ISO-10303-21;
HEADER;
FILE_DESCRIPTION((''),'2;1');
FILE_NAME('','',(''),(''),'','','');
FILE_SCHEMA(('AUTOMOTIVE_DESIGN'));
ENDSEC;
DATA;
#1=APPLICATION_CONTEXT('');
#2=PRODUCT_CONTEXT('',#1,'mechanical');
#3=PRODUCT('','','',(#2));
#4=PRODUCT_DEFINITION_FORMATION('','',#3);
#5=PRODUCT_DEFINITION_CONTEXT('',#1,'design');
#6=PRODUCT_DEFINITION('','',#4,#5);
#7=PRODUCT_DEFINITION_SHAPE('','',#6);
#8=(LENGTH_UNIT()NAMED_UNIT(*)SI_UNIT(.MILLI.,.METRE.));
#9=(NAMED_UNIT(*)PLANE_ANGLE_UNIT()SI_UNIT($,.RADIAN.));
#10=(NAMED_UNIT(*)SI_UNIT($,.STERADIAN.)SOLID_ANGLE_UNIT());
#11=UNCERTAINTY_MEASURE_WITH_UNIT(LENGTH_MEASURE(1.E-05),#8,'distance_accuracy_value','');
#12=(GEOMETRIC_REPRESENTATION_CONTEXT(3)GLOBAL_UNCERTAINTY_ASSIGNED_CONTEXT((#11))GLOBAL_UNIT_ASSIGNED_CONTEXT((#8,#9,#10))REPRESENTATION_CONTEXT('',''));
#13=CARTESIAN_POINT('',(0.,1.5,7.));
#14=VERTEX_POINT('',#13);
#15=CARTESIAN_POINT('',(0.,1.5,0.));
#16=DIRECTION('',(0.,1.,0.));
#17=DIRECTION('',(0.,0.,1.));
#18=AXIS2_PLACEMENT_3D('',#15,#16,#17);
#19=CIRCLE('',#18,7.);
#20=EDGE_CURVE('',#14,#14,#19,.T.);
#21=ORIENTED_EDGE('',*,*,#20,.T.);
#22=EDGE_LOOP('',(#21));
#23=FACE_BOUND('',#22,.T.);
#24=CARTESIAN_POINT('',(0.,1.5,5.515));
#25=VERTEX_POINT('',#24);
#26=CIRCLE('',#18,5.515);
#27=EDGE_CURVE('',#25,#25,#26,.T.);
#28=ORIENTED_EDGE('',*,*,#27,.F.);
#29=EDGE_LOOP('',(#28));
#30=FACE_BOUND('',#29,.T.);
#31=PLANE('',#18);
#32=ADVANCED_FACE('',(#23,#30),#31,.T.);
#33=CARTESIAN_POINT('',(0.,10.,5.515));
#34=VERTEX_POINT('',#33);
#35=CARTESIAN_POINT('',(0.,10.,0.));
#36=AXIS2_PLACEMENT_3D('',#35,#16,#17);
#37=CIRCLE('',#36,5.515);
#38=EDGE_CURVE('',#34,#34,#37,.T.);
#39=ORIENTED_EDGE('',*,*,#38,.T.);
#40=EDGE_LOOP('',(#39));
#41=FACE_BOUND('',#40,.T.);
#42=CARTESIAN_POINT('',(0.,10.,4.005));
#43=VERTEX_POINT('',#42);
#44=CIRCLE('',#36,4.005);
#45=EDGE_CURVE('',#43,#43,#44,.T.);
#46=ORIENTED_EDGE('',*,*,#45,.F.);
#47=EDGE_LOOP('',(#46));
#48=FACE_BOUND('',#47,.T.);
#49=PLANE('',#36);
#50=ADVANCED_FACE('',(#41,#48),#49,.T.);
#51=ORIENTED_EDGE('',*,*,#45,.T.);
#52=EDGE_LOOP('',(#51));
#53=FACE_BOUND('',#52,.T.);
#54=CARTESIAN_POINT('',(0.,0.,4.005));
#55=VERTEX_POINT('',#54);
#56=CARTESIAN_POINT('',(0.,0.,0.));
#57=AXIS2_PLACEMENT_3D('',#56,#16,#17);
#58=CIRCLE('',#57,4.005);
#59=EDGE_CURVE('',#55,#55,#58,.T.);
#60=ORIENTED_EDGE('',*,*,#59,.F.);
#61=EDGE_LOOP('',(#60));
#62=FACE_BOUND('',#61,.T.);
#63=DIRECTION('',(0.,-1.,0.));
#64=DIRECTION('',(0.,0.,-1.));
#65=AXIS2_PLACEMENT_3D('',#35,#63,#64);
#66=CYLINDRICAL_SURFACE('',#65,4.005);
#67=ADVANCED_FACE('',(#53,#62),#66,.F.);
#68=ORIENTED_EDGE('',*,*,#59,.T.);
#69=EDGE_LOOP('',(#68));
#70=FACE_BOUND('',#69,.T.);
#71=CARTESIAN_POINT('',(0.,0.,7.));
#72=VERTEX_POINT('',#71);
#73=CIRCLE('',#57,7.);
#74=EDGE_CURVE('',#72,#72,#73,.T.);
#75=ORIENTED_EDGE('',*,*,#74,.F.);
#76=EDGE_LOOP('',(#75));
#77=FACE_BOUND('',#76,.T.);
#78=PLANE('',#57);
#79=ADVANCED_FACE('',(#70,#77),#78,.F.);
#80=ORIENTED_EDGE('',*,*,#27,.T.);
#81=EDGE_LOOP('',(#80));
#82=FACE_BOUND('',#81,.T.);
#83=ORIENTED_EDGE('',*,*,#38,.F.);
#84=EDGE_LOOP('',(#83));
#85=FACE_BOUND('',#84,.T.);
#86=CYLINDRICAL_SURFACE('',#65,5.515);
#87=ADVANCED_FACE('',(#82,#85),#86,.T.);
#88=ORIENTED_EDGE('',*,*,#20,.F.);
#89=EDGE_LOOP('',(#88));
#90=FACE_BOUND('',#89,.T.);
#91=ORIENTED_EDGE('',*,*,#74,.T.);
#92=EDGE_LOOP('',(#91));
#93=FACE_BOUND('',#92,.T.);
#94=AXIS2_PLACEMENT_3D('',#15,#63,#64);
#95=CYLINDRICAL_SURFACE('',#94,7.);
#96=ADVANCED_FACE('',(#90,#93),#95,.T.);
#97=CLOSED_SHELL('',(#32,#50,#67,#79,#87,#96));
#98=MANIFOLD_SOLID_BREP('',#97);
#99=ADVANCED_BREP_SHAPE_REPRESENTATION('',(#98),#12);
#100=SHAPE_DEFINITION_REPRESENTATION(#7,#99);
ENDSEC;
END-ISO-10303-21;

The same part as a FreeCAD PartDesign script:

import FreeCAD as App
import Part
import Sketcher
from FreeCAD import Vector

doc = App.newDocument("Part")
body = doc.addObject("PartDesign::Body", "Body")

sketch1 = body.newObject("Sketcher::SketchObject", "Sketch")
sketch1.AttachmentSupport = (doc.getObject("XZ_Plane"), [""])
sketch1.MapMode = "FlatFace"
sketch1.addGeometry([
    Part.Circle(Vector(0, 0, 0), Vector(0, 0, 1), 5.5),
    Part.Circle(Vector(0, 0, 0), Vector(0, 0, 1), 4),
], False)
sketch1.addConstraint([
    Sketcher.Constraint("Coincident", 0, 3, -1, 1),
    Sketcher.Constraint("Coincident", 1, 3, -1, 1),
    Sketcher.Constraint("Diameter", 0, 11.03),
    Sketcher.Constraint("Diameter", 1, 8.01),
])
pad1 = body.newObject("PartDesign::Pad", "Pad")
pad1.Profile = sketch1
pad1.Length = 10
pad1.Reversed = True

sketch2 = body.newObject("Sketcher::SketchObject", "Sketch001")
sketch2.AttachmentSupport = (doc.getObject("XZ_Plane"), [""])
sketch2.MapMode = "FlatFace"
sketch2.addGeometry([
    Part.Circle(Vector(0, 0, 0), Vector(0, 0, 1), 7),
    Part.Circle(Vector(0, 0, 0), Vector(0, 0, 1), 6),
], False)
sketch2.addConstraint([
    Sketcher.Constraint("Coincident", 0, 3, -1, 1),
    Sketcher.Constraint("Coincident", 1, 3, -1, 1),
    Sketcher.Constraint("Diameter", 0, 14.0),
    Sketcher.Constraint("Diameter", 1, 11.03),
])
pad2 = body.newObject("PartDesign::Pad", "Pad001")
pad2.Profile = sketch2
pad2.Length = 1.5
pad2.Reversed = True

doc.recompute()
